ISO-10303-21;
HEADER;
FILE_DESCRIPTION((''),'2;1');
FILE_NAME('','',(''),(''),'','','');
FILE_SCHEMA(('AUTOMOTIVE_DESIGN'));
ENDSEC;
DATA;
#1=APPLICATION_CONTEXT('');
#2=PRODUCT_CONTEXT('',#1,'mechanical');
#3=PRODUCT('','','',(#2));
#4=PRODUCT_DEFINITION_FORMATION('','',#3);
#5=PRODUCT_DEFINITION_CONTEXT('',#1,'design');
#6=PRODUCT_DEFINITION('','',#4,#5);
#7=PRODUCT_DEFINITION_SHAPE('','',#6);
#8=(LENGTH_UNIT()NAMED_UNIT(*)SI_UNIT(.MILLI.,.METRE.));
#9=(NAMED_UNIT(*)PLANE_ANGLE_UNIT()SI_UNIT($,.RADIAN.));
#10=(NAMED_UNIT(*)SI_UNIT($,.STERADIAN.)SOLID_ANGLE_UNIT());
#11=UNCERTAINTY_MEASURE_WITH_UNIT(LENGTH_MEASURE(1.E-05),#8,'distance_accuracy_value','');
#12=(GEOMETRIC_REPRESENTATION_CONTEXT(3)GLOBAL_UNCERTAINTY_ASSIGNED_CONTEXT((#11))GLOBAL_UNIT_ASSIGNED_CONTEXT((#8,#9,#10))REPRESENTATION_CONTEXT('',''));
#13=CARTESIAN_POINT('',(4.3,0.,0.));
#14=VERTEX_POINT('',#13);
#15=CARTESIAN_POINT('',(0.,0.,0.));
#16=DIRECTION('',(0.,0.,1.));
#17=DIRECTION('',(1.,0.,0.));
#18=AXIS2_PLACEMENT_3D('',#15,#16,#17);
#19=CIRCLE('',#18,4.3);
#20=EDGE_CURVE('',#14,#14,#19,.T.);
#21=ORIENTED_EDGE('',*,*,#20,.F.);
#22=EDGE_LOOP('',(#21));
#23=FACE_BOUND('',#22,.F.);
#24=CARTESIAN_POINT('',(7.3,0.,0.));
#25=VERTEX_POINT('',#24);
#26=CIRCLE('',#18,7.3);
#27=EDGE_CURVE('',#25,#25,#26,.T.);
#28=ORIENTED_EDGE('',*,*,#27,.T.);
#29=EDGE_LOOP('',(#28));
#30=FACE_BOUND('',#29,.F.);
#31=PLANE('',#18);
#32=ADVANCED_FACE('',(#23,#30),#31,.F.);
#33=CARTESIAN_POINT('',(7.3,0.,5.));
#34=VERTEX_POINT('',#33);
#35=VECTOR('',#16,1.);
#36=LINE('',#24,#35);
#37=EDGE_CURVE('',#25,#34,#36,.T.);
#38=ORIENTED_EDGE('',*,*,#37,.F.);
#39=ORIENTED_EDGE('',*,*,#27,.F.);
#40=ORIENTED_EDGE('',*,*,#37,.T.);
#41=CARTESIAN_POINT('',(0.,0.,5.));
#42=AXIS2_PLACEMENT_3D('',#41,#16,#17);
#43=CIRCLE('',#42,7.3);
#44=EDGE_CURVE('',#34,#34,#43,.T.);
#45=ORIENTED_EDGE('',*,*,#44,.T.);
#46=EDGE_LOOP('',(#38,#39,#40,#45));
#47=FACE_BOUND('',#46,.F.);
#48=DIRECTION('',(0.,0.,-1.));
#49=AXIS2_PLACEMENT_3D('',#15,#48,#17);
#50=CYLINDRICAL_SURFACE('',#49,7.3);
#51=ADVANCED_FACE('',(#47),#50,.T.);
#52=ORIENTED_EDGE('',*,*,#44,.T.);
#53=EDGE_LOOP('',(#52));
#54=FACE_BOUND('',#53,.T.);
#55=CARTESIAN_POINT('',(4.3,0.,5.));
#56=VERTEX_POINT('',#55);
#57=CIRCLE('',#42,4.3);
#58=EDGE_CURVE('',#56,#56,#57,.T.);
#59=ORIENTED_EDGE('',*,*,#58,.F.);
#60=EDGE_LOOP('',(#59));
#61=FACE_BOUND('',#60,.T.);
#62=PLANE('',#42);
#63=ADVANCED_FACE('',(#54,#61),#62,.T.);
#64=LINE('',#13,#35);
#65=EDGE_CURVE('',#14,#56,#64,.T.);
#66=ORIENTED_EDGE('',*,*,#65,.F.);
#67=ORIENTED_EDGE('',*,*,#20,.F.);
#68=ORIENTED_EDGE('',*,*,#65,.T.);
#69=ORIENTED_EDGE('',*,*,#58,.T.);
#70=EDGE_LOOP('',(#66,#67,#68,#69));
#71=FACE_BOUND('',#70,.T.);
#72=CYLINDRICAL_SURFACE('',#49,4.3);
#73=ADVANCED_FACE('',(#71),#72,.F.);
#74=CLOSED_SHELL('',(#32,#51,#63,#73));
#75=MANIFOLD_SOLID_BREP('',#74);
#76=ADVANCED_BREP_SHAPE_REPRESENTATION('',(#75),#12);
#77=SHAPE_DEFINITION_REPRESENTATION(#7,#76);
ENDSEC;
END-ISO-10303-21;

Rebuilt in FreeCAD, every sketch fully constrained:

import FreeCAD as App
import Part
import Sketcher
from FreeCAD import Vector
Q = App.Units.Quantity

doc = App.newDocument("Part")
body = doc.addObject("PartDesign::Body", "Body")

sketch1 = body.newObject("Sketcher::SketchObject", "Sketch")
sketch1.AttachmentSupport = (doc.getObject("XY_Plane"), [""])
sketch1.MapMode = "FlatFace"
sketch1.addGeometry([
    Part.Circle(Vector(0, 0, 0), Vector(0, 0, 1), 7.3),
    Part.Circle(Vector(0, 0, 0), Vector(0, 0, 1), 4.3),
], False)
sketch1.addConstraint([
    Sketcher.Constraint("Coincident", 0, 3, -1, 1),
    Sketcher.Constraint("Coincident", 1, 3, -1, 1),
    Sketcher.Constraint("Diameter", 1, Q("8.6 mm")),
    Sketcher.Constraint("Diameter", 0, Q("14.6 mm")),
])
pad1 = body.newObject("PartDesign::Pad", "Pad")
pad1.Profile = sketch1
pad1.Length = 5

doc.recompute()
